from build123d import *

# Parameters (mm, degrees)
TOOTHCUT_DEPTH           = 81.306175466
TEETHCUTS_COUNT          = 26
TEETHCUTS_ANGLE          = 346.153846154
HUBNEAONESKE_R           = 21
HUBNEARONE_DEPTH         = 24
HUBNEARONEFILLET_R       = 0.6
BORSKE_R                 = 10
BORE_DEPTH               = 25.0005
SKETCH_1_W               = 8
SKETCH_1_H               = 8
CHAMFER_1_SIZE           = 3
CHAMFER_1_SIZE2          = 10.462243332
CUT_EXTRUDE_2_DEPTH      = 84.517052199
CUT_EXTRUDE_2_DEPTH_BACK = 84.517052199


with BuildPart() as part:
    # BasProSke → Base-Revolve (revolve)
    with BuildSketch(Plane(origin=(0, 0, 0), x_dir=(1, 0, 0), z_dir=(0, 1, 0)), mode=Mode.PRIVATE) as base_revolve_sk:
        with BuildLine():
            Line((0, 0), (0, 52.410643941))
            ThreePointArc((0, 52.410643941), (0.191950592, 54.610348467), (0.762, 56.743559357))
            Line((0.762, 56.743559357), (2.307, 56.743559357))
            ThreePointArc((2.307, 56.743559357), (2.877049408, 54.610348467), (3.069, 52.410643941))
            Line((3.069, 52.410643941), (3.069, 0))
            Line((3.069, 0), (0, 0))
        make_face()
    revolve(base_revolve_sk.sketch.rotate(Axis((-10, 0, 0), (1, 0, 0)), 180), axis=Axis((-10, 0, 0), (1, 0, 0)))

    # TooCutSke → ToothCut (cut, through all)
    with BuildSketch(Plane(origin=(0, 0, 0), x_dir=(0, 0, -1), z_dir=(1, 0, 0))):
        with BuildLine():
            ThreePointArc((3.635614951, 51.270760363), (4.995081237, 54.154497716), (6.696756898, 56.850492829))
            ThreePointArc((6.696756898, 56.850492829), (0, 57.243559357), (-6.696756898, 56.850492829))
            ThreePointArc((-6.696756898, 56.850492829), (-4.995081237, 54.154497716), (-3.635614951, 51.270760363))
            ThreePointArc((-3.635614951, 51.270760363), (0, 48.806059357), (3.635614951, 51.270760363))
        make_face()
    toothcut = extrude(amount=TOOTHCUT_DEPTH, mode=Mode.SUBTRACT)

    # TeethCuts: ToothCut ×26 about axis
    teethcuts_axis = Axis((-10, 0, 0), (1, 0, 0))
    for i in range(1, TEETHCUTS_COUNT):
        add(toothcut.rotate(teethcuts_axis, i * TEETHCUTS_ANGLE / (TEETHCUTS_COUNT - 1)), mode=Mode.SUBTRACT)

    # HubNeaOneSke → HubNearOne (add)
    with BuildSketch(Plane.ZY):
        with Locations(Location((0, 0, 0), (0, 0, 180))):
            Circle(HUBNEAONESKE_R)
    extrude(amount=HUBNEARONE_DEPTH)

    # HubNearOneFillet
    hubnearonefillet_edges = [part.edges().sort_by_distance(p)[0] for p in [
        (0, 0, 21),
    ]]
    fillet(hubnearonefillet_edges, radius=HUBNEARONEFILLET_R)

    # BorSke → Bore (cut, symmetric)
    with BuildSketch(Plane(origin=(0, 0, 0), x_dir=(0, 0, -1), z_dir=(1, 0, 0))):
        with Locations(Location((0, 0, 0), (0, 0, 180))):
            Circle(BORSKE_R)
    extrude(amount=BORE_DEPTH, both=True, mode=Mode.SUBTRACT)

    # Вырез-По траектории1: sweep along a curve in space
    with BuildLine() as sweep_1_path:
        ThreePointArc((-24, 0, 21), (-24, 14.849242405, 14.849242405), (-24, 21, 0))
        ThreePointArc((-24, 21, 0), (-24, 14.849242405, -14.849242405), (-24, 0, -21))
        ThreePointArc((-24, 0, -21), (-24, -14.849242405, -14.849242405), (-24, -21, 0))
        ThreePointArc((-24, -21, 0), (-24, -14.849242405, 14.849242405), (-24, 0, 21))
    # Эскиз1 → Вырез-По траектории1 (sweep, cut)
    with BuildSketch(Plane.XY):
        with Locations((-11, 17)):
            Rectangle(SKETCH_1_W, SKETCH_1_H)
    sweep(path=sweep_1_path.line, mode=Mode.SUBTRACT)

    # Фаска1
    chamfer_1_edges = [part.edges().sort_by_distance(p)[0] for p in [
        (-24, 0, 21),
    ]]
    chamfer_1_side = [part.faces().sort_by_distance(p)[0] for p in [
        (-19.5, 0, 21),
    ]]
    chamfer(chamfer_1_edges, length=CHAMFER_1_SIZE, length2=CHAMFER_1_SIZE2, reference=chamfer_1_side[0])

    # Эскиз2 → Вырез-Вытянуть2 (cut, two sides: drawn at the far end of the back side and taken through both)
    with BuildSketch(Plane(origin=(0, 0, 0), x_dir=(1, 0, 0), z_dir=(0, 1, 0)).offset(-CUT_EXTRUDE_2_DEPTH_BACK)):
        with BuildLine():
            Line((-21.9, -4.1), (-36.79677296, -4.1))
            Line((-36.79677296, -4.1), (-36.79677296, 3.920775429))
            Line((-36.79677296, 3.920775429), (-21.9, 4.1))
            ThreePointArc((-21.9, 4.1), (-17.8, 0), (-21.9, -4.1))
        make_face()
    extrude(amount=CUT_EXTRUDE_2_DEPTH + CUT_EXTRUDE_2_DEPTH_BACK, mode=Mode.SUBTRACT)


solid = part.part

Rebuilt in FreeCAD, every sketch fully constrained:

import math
import FreeCAD as App
import Part
import Sketcher

V = App.Vector
Q = App.Units.Quantity


def edges_at(feature, points):
    """Names of the edges that pass closest to the given points."""
    edges = feature.Shape.Edges
    near = lambda p: min(range(len(edges)), key=lambda i: edges[i].distToShape(Part.Vertex(*p))[0])
    return sorted({f"Edge{near(p) + 1}" for p in points})

doc = App.newDocument("Part")
body = doc.addObject("PartDesign::Body", "Body")

# Sketch on XZ plane
sketch1 = body.newObject("Sketcher::SketchObject", "Sketch")
sketch1.AttachmentSupport = (doc.getObject("XZ_Plane"), [""])
sketch1.MapMode = "FlatFace"
sketch1.addGeometry([
    Part.LineSegment(V(0, -52.4, 0), V(0, 0, 0)),  # 0
    Part.LineSegment(V(0, 0, 0), V(3.1, 0, 0)),  # 1
    Part.LineSegment(V(3.1, 0, 0), V(3.1, -52.4, 0)),  # 2
    Part.ArcOfCircle(Part.Circle(V(-9.6, -52.4, 0), V(0, 0, 1), 12.7), math.radians(-19.95), math.radians(0)),  # 3
    Part.LineSegment(V(2.3, -56.7, 0), V(0.8, -56.7, 0)),  # 4
    Part.ArcOfCircle(Part.Circle(V(12.7, -52.4, 0), V(0, 0, 1), 12.7), math.radians(-180), math.radians(-160.05)),  # 5
], False)
sketch1.addConstraint([
    Sketcher.Constraint("Coincident", 0, 2, 1, 1),
    Sketcher.Constraint("Coincident", 1, 2, 2, 1),
    Sketcher.Constraint("Tangent", 2, 2, 3, 2),
    Sketcher.Constraint("Coincident", 3, 1, 4, 1),
    Sketcher.Constraint("Coincident", 4, 2, 5, 2),
    Sketcher.Constraint("Tangent", 5, 1, 0, 1),
    Sketcher.Constraint("Vertical", 0),
    Sketcher.Constraint("Horizontal", 1),
    Sketcher.Constraint("Vertical", 2),
    Sketcher.Constraint("Horizontal", 4),
    Sketcher.Constraint("Coincident", 0, 2, -1, 1),
    Sketcher.Constraint("Equal", 3, 5),
    Sketcher.Constraint("Horizontal", 3, 3, 5, 3),
    Sketcher.Constraint("Radius", 3, Q("12.7 mm")),
    Sketcher.Constraint("DistanceX", 1, 1, 1, 2, Q("3.069 mm")),
    Sketcher.Constraint("DistanceX", 4, 2, 4, 1, Q("1.545 mm")),
    Sketcher.Constraint("DistanceY", 0, 1, 0, 2, Q("52.410644 mm")),
])
revolution = body.newObject("PartDesign::Revolution", "Revolution")
revolution.Profile = sketch1
revolution.ReferenceAxis = (sketch1, ["H_Axis"])
revolution.Angle = 360

# Sketch on YZ plane
sketch2 = body.newObject("Sketcher::SketchObject", "Sketch001")
sketch2.AttachmentSupport = (doc.getObject("YZ_Plane"), [""])
sketch2.MapMode = "FlatFace"
sketch2.addGeometry([
    Part.ArcOfCircle(Part.Circle(V(41.6, -27.8, 0), V(0, 0, 1), 26), math.radians(54.23), math.radians(68.27)),
    Part.ArcOfCircle(Part.Circle(V(0, 0, 0), V(0, 0, 1), 57.2), math.radians(-6.72), math.radians(6.72)),
    Part.ArcOfCircle(Part.Circle(V(41.6, 27.8, 0), V(0, 0, 1), 26), math.radians(-68.27), math.radians(-54.23)),
    Part.ArcOfCircle(Part.Circle(V(52.7, 0, 0), V(0, 0, 1), 3.9), math.radians(112), math.radians(248)),
], False)
sketch2.addConstraint([
    Sketcher.Constraint("Coincident", 0, 1, 1, 1),
    Sketcher.Constraint("Coincident", 1, 2, 2, 2),
    Sketcher.Constraint("Tangent", 2, 1, 3, 1),
    Sketcher.Constraint("Tangent", 3, 2, 0, 2),
    Sketcher.Constraint("Coincident", 1, 3, -1, 1),
    Sketcher.Constraint("Equal", 0, 2),
    Sketcher.Constraint("Symmetric", 0, 3, 2, 3, -1),
    Sketcher.Constraint("Radius", 0, Q("26.04 mm")),
    Sketcher.Constraint("Radius", 1, Q("57.243559 mm")),
    Sketcher.Constraint("Radius", 3, Q("3.91375 mm")),
    Sketcher.Constraint("DistanceX", -1, 1, 3, 3, Q("52.719809 mm")),
    Sketcher.Constraint("DistanceX", -1, 1, 2, 1, Q("51.27076 mm")),
])
pocket1 = body.newObject("PartDesign::Pocket", "Pocket")
pocket1.Profile = sketch2
pocket1.Type = "ThroughAll"
pocket1.Reversed = True
doc.recompute()

polarpattern = body.newObject("PartDesign::PolarPattern", "PolarPattern")
polarpattern.Originals = [pocket1]
polarpattern.Axis = (doc.getObject("X_Axis"), [""])
polarpattern.Angle = 360
polarpattern.Occurrences = 26
body.Tip = polarpattern

# Sketch on YZ plane
sketch3 = body.newObject("Sketcher::SketchObject", "Sketch002")
sketch3.AttachmentSupport = (doc.getObject("YZ_Plane"), [""])
sketch3.MapMode = "FlatFace"
sketch3.addGeometry(Part.Circle(V(0, 0, 0), V(0, 0, 1), 21), False)
sketch3.addConstraint([
    Sketcher.Constraint("Coincident", 0, 3, -1, 1),
    Sketcher.Constraint("Diameter", 0, Q("42 mm")),
])
pad1 = body.newObject("PartDesign::Pad", "Pad")
pad1.Profile = sketch3
pad1.Length = 24
pad1.Reversed = True
doc.recompute()

fillet = body.newObject("PartDesign::Fillet", "Fillet")
fillet.Base = (pad1, edges_at(pad1, [(0, 0, 21)]))
fillet.Radius = 0.6

# Sketch on YZ plane
sketch4 = body.newObject("Sketcher::SketchObject", "Sketch003")
sketch4.AttachmentSupport = (doc.getObject("YZ_Plane"), [""])
sketch4.MapMode = "FlatFace"
sketch4.addGeometry(Part.Circle(V(0, 0, 0), V(0, 0, 1), 10), False)
sketch4.addConstraint([
    Sketcher.Constraint("Coincident", 0, 3, -1, 1),
    Sketcher.Constraint("Diameter", 0, Q("20 mm")),
])
pocket2 = body.newObject("PartDesign::Pocket", "Pocket001")
pocket2.Profile = sketch4
pocket2.Length = 50.001
pocket2.Midplane = True

# Sketch on XY plane
sketch5 = body.newObject("Sketcher::SketchObject", "Sketch004")
sketch5.AttachmentSupport = (doc.getObject("XY_Plane"), [""])
sketch5.MapMode = "FlatFace"
sketch5.addGeometry([
    Part.LineSegment(V(-15, 21, 0), V(-15, 13, 0)),
    Part.LineSegment(V(-15, 13, 0), V(-7, 13, 0)),
    Part.LineSegment(V(-7, 13, 0), V(-7, 21, 0)),
    Part.LineSegment(V(-7, 21, 0), V(-15, 21, 0)),
], False)
sketch5.addConstraint([
    Sketcher.Constraint("Coincident", 0, 2, 1, 1),
    Sketcher.Constraint("Coincident", 1, 2, 2, 1),
    Sketcher.Constraint("Coincident", 2, 2, 3, 1),
    Sketcher.Constraint("Coincident", 3, 2, 0, 1),
    Sketcher.Constraint("Vertical", 0),
    Sketcher.Constraint("Horizontal", 1),
    Sketcher.Constraint("Vertical", 2),
    Sketcher.Constraint("Horizontal", 3),
    Sketcher.Constraint("Equal", 3, 0),
    Sketcher.Constraint("DistanceX", 1, 1, 1, 2, Q("8 mm")),
    Sketcher.Constraint("DistanceX", 0, 2, -1, 1, Q("15 mm")),
    Sketcher.Constraint("DistanceY", -1, 1, 0, 2, Q("13 mm")),
])

# Sketch on YZ plane
sketch6 = body.newObject("Sketcher::SketchObject", "Sketch005")
sketch6.AttachmentSupport = (doc.getObject("YZ_Plane"), [""])
sketch6.MapMode = "FlatFace"
sketch6.AttachmentOffset = App.Placement(V(0, 0, -24), App.Rotation())
sketch6.addGeometry([
    Part.ArcOfCircle(Part.Circle(V(0, 0, 0), V(0, 0, 1), 21), math.radians(0), math.radians(90)),
    Part.ArcOfCircle(Part.Circle(V(0, 0, 0), V(0, 0, 1), 21), math.radians(-90), math.radians(0)),
    Part.ArcOfCircle(Part.Circle(V(0, 0, 0), V(0, 0, 1), 21), math.radians(180), math.radians(270)),
    Part.ArcOfCircle(Part.Circle(V(0, 0, 0), V(0, 0, 1), 21), math.radians(90), math.radians(180)),
], False)
sketch6.addConstraint([
    Sketcher.Constraint("Tangent", 0, 1, 1, 2),
    Sketcher.Constraint("Tangent", 1, 1, 2, 2),
    Sketcher.Constraint("Tangent", 2, 1, 3, 2),
    Sketcher.Constraint("Tangent", 3, 1, 0, 2),
    Sketcher.Constraint("Coincident", 0, 3, -1, 1),
    Sketcher.Constraint("Equal", 0, 1),
    Sketcher.Constraint("PointOnObject", 0, 1, -1),
    Sketcher.Constraint("PointOnObject", 1, 1, -2),
    Sketcher.Constraint("PointOnObject", 2, 1, -1),
    Sketcher.Constraint("PointOnObject", 3, 1, -2),
    Sketcher.Constraint("Radius", 0, Q("21 mm")),
])
doc.recompute()

subtractivepipe = body.newObject("PartDesign::SubtractivePipe", "SubtractivePipe")
subtractivepipe.Profile = sketch5
subtractivepipe.Spine = (sketch6, ["Edge1", "Edge2", "Edge3", "Edge4"])
doc.recompute()

chamfer = body.newObject("PartDesign::Chamfer", "Chamfer")
chamfer.Base = (subtractivepipe, edges_at(subtractivepipe, [(-24, 0, 21)]))
chamfer.ChamferType = "Two distances"
chamfer.Size = 3
chamfer.Size2 = 10.462243
chamfer.FlipDirection = True

# Sketch on XZ plane
sketch7 = body.newObject("Sketcher::SketchObject", "Sketch006")
sketch7.AttachmentSupport = (doc.getObject("XZ_Plane"), [""])
sketch7.MapMode = "FlatFace"
sketch7.addGeometry([
    Part.LineSegment(V(-36.8, 4.1, 0), V(-21.9, 4.1, 0)),
    Part.ArcOfCircle(Part.Circle(V(-21.9, 0, 0), V(0, 0, 1), 4.1), math.radians(-90), math.radians(90)),
    Part.LineSegment(V(-21.9, -4.1, 0), V(-36.8, -3.9, 0)),
    Part.LineSegment(V(-36.8, -3.9, 0), V(-36.8, 4.1, 0)),
], False)
sketch7.addConstraint([
    Sketcher.Constraint("Tangent", 0, 2, 1, 2),
    Sketcher.Constraint("Coincident", 1, 1, 2, 1),
    Sketcher.Constraint("Coincident", 2, 2, 3, 1),
    Sketcher.Constraint("Coincident", 3, 2, 0, 1),
    Sketcher.Constraint("Horizontal", 0),
    Sketcher.Constraint("Vertical", 3),
    Sketcher.Constraint("Symmetric", 0, 2, 1, 1, -1),
    Sketcher.Constraint("Radius", 1, Q("4.1 mm")),
    Sketcher.Constraint("DistanceX", 1, 3, -1, 1, Q("21.9 mm")),
    Sketcher.Constraint("Distance", 2, Q("14.897851 mm")),
    Sketcher.Constraint("DistanceX", 0, 1, 0, 2, Q("14.896773 mm")),
])
pocket3 = body.newObject("PartDesign::Pocket", "Pocket002")
pocket3.Profile = sketch7
pocket3.Type = "ThroughAll"
pocket3.Midplane = True

doc.recompute()
